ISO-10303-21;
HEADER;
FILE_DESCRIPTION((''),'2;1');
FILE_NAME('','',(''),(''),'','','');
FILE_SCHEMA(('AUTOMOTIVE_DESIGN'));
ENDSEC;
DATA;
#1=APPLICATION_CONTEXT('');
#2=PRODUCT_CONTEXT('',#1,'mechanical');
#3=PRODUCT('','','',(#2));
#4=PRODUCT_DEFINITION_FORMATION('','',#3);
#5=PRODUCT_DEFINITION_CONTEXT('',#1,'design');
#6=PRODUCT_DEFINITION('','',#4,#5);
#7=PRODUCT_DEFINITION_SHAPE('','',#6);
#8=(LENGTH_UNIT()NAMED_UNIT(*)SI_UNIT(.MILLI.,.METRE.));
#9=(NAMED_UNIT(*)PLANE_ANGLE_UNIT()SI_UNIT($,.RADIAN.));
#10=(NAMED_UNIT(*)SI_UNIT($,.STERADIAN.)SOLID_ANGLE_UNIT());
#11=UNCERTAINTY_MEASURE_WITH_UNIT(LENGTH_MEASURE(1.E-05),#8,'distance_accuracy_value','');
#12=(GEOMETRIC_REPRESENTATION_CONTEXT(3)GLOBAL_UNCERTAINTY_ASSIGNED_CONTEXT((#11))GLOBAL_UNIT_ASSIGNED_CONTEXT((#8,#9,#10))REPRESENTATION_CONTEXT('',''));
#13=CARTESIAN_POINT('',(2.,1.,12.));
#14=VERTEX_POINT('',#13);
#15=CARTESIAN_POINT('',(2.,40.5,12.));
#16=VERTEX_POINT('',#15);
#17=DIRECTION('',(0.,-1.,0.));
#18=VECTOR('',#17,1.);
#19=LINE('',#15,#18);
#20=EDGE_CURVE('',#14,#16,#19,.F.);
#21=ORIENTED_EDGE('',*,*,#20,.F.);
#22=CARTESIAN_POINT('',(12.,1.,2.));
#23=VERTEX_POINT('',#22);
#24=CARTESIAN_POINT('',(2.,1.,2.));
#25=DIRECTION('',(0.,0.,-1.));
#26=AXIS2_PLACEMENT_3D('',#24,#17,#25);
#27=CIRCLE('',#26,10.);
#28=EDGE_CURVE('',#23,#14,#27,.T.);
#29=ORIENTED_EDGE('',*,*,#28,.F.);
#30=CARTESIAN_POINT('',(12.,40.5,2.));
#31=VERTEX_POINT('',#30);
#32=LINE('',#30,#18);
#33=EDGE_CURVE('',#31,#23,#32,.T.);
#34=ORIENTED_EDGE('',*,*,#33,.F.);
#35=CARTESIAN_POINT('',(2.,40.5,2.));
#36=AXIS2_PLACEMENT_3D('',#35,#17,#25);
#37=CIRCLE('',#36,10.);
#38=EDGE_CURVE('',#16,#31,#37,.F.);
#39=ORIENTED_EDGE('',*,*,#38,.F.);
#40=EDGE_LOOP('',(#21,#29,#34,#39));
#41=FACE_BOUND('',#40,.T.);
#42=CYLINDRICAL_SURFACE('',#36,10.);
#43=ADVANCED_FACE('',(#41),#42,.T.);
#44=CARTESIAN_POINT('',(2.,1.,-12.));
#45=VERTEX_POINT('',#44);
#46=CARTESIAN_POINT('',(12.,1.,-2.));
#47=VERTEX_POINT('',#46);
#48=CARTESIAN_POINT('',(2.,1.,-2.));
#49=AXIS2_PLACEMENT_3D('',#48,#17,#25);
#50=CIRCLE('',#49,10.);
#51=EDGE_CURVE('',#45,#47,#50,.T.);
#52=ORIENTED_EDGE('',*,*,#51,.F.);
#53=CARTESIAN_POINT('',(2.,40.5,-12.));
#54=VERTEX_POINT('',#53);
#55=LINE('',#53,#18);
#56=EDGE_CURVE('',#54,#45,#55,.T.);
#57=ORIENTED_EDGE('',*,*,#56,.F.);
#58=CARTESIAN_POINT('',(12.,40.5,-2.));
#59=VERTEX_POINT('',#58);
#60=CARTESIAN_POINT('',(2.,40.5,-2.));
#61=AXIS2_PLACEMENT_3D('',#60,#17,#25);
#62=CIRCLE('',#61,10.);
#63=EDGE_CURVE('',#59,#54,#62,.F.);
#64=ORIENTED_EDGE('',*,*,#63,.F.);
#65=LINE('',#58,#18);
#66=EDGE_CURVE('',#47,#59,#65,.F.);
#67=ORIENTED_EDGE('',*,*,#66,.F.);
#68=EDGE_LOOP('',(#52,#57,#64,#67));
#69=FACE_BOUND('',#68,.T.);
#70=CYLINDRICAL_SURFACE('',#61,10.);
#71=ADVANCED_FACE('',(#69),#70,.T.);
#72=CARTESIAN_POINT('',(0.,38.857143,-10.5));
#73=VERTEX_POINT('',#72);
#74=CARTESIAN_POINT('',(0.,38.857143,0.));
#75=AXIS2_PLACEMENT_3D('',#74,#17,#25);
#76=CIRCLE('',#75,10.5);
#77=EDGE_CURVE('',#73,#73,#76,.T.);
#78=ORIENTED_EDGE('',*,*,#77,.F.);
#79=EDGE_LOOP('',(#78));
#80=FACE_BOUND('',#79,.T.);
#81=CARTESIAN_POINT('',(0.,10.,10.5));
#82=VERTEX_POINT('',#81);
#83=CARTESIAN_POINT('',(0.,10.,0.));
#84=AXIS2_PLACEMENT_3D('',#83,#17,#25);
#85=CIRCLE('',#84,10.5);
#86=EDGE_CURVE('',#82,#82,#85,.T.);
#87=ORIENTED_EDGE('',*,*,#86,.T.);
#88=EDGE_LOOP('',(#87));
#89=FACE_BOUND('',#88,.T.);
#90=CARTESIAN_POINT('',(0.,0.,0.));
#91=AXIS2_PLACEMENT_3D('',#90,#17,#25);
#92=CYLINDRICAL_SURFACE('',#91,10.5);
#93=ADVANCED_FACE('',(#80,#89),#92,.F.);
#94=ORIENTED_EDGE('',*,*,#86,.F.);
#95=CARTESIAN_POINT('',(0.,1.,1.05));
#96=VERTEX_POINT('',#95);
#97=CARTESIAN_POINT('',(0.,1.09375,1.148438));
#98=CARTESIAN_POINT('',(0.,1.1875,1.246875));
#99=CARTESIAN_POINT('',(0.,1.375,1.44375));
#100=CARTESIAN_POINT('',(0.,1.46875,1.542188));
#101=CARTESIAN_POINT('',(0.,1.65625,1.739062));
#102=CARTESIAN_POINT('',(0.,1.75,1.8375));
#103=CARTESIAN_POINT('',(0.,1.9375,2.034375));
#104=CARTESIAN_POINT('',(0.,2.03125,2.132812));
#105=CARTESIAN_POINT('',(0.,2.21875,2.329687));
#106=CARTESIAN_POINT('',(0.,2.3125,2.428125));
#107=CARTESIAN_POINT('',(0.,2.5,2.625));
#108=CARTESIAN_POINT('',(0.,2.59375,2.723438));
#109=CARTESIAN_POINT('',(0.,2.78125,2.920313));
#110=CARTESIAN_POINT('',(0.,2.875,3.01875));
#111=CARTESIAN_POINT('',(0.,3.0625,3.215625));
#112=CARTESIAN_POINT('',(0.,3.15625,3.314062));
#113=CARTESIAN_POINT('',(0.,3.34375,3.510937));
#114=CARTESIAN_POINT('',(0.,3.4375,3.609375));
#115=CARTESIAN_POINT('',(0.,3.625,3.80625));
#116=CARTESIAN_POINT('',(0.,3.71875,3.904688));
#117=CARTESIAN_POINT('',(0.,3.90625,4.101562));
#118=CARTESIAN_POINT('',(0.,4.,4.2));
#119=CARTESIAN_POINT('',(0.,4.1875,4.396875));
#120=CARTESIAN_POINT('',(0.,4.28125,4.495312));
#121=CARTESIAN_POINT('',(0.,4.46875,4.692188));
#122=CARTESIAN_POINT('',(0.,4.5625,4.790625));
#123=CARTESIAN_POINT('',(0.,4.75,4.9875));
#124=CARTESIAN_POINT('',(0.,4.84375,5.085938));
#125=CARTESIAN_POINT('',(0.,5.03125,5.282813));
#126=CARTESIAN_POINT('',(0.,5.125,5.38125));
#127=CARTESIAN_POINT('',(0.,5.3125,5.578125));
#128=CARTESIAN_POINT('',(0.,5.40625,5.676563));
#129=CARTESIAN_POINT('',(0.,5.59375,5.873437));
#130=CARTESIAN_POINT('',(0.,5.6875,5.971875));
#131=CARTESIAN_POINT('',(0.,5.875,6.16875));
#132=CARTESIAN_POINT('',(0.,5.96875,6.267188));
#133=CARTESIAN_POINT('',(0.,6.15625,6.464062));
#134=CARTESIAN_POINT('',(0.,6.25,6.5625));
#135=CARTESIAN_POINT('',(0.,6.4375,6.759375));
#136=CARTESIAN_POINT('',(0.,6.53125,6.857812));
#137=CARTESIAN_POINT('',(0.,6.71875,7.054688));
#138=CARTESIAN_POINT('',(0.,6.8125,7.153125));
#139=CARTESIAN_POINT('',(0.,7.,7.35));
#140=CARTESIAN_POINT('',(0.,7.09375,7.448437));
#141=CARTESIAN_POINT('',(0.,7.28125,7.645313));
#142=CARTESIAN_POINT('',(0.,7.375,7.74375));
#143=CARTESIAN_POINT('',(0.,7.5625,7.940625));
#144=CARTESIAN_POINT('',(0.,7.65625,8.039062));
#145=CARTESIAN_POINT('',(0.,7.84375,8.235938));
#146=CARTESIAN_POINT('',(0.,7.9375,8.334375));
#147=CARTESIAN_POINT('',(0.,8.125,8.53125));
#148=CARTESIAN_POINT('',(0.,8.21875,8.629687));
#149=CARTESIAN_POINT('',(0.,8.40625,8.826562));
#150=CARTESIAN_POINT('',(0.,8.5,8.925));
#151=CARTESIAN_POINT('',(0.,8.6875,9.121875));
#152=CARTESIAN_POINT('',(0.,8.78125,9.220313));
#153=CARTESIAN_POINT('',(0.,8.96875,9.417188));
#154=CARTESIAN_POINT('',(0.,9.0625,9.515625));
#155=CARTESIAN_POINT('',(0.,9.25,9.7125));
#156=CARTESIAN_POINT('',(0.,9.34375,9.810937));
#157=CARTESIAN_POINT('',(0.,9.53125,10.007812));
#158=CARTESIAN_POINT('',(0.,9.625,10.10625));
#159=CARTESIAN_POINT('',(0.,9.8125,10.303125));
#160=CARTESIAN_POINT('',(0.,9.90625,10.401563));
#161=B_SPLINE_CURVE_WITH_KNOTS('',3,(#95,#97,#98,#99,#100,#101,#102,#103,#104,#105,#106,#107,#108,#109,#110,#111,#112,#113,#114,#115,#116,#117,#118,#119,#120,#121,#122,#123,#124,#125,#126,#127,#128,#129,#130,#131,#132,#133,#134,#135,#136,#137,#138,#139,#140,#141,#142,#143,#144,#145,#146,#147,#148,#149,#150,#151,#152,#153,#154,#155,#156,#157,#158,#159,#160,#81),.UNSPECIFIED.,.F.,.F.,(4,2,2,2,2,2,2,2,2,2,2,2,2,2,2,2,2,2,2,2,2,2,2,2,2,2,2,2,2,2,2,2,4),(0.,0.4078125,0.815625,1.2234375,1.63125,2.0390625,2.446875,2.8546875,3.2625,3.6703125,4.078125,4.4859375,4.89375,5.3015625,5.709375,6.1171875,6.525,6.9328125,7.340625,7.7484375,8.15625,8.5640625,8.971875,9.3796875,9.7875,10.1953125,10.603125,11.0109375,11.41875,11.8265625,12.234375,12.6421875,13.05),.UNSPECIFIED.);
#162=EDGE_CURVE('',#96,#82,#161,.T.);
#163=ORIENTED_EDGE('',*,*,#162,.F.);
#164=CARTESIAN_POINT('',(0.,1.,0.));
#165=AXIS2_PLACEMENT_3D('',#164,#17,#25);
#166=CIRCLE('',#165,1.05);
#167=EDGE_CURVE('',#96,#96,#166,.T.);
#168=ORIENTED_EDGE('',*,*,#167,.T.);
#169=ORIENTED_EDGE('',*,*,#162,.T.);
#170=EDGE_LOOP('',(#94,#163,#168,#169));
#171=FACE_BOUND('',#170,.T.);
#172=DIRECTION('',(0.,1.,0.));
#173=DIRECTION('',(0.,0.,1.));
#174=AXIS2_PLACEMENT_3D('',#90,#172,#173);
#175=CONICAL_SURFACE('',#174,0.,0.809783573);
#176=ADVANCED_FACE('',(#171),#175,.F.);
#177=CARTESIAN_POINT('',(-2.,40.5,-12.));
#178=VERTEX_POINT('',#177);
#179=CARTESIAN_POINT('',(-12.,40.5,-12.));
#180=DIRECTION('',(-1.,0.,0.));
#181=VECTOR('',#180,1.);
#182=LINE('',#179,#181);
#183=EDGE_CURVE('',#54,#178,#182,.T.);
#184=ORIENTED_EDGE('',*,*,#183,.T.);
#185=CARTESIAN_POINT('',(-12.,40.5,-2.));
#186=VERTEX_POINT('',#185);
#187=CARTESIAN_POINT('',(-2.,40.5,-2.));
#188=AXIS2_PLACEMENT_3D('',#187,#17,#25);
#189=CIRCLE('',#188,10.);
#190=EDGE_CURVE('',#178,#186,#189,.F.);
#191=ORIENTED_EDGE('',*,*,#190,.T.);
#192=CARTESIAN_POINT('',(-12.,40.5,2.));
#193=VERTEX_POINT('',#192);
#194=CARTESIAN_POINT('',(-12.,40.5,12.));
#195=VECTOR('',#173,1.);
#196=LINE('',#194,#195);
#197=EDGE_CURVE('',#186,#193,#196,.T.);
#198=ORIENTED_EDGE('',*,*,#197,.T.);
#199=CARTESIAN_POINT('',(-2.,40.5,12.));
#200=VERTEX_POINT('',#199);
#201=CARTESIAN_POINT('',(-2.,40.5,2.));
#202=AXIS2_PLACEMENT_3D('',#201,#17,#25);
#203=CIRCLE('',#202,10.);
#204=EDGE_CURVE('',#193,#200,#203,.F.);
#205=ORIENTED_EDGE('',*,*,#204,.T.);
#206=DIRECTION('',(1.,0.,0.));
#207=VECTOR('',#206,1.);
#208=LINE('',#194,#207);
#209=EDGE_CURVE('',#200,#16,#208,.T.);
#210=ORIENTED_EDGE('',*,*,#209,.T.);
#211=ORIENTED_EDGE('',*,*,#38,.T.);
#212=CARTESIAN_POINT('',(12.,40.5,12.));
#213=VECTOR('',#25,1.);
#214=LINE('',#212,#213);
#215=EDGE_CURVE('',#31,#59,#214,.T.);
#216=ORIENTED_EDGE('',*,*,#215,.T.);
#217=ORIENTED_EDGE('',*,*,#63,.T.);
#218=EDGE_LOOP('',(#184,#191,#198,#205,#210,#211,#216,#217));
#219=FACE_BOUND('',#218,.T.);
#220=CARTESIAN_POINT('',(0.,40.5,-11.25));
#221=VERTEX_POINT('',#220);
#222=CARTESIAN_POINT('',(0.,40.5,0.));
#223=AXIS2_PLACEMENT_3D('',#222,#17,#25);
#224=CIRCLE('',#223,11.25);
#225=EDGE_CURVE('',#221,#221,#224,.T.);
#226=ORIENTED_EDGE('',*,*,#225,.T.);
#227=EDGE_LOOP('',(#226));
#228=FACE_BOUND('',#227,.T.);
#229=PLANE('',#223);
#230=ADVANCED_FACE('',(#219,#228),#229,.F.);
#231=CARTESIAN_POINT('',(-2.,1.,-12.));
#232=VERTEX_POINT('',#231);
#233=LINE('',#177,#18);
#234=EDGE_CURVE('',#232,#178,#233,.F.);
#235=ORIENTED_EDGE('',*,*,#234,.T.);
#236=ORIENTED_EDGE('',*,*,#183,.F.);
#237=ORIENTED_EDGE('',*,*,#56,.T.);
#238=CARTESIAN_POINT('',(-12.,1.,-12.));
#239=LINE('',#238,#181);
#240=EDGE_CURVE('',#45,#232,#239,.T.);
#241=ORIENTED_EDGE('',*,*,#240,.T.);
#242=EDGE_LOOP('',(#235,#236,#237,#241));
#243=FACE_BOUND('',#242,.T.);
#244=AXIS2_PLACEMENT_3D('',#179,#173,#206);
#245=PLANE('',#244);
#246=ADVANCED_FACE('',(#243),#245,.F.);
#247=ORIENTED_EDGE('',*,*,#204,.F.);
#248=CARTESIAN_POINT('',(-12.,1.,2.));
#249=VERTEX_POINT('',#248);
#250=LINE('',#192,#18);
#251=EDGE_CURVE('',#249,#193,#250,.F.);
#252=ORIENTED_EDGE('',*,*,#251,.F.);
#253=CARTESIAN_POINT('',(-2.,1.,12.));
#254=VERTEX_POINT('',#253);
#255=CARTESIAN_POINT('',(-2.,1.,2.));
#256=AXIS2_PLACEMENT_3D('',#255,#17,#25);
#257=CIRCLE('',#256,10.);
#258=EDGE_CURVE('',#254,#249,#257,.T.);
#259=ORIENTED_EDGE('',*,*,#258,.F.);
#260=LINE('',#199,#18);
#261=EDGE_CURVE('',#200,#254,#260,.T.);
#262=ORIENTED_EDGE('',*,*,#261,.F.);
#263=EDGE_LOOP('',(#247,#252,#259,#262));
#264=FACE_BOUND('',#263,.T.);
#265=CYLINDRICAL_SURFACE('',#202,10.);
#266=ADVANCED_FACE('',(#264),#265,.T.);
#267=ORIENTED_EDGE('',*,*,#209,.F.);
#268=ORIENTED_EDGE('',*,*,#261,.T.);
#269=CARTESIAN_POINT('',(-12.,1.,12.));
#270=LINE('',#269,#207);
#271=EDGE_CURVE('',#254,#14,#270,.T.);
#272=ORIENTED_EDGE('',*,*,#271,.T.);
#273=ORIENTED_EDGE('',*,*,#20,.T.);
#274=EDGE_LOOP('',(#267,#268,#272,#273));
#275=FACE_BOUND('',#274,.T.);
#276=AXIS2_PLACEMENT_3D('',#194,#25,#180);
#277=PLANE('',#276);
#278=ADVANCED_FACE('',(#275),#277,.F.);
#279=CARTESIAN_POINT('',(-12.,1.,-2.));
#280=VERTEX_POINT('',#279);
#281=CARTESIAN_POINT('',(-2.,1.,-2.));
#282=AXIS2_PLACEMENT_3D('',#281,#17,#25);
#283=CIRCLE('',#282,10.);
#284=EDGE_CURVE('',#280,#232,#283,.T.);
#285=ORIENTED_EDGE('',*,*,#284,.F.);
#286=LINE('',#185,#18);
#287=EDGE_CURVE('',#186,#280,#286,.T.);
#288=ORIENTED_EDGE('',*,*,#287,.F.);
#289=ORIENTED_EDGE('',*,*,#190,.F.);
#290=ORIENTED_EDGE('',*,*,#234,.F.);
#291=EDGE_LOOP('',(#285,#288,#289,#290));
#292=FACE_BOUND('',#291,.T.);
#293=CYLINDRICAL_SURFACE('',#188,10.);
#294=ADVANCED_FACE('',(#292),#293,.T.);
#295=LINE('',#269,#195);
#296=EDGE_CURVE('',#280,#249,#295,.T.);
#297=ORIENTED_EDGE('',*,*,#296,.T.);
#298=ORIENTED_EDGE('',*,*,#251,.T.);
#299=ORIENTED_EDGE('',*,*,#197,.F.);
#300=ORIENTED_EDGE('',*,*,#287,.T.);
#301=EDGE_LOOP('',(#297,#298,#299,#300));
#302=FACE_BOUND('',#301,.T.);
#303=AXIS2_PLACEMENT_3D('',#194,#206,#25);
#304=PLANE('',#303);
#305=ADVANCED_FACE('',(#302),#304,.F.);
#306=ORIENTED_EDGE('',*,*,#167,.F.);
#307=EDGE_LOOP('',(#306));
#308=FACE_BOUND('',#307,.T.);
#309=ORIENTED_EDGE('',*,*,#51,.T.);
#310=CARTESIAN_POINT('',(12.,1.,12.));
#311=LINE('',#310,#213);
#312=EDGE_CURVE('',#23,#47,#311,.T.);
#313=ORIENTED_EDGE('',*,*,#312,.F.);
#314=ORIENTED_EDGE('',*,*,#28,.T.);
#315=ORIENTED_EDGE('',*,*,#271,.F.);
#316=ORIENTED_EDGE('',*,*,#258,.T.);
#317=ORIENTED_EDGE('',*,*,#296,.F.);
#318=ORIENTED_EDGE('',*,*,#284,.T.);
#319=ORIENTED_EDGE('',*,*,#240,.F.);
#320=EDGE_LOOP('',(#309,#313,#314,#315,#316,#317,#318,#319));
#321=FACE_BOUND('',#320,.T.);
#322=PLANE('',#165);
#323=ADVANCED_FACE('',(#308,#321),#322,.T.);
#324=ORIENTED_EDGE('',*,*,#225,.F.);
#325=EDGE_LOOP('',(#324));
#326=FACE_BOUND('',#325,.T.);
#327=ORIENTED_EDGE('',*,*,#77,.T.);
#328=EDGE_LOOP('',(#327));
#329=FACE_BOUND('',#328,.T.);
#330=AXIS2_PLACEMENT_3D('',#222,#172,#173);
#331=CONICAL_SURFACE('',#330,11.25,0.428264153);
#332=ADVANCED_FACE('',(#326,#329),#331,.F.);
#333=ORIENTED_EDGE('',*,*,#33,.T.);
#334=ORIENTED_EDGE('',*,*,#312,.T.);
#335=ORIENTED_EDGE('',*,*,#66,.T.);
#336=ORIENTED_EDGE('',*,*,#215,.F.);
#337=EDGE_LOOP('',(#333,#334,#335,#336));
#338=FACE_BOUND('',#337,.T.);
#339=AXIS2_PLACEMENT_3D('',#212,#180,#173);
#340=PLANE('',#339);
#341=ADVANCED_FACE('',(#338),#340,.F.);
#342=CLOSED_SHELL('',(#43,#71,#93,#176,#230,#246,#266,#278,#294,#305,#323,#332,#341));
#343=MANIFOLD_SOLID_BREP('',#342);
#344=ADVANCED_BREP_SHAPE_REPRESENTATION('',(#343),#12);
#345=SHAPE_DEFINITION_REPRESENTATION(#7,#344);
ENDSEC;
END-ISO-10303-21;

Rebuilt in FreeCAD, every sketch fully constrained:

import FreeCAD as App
import Part
import Sketcher
from FreeCAD import Vector
Q = App.Units.Quantity


def edges_at(feature, points):
    """Names of the edges that pass closest to the given points."""
    edges = feature.Shape.Edges
    near = lambda p: min(range(len(edges)), key=lambda i: edges[i].distToShape(Part.Vertex(*p))[0])
    return sorted({f"Edge{near(p) + 1}" for p in points})

doc = App.newDocument("Part")
body = doc.addObject("PartDesign::Body", "Body")

sketch1 = doc.addObject("Sketcher::SketchObject", "Sketch")
body.addObject(sketch1)
sketch1.AttachmentSupport = (doc.YZ_Plane, [""])
sketch1.MapMode = "FlatFace"
sketch1.addGeometry([
    Part.LineSegment(Vector(0, 0, 0), Vector(10, -10.5, 0)),
    Part.LineSegment(Vector(10, -10.5, 0), Vector(38.9, -10.5, 0)),
    Part.LineSegment(Vector(38.9, -10.5, 0), Vector(40.5, -11.2, 0)),
    Part.LineSegment(Vector(40.5, -11.2, 0), Vector(44.5, -11.2, 0)),
    Part.LineSegment(Vector(44.5, -11.2, 0), Vector(44.5, 0, 0)),
    Part.LineSegment(Vector(44.5, 0, 0), Vector(0, 0, 0)),
], False)
sketch1.addConstraint([
    Sketcher.Constraint("Coincident", 0, 2, 1, 1),
    Sketcher.Constraint("Coincident", 1, 2, 2, 1),
    Sketcher.Constraint("Coincident", 2, 2, 3, 1),
    Sketcher.Constraint("Coincident", 3, 2, 4, 1),
    Sketcher.Constraint("Coincident", 4, 2, 5, 1),
    Sketcher.Constraint("Coincident", 5, 2, 0, 1),
    Sketcher.Constraint("Horizontal", 1),
    Sketcher.Constraint("Horizontal", 3),
    Sketcher.Constraint("Vertical", 4),
    Sketcher.Constraint("Horizontal", 5),
    Sketcher.Constraint("Coincident", 5, 2, -1, 1),
    Sketcher.Constraint("DistanceX", 3, 1, 3, 2, Q("4 mm")),
    Sketcher.Constraint("DistanceX", 5, 2, 5, 1, Q("44.5 mm")),
    Sketcher.Constraint("DistanceX", -1, 1, 0, 2, Q("10 mm")),
    Sketcher.Constraint("Distance", 0, Q("14.5 mm")),
    Sketcher.Constraint("DistanceY", 4, 1, 4, 2, Q("11.25 mm")),
    Sketcher.Constraint("DistanceX", 1, 1, 1, 2, Q("28.857143 mm")),
])
revolution = doc.addObject("PartDesign::Revolution", "Revolution")
body.addObject(revolution)
revolution.Profile = sketch1
revolution.ReferenceAxis = (sketch1, ["H_Axis"])
revolution.Angle = 360
body2 = doc.addObject("PartDesign::Body", "Body001")

sketch2 = doc.addObject("Sketcher::SketchObject", "Sketch001")
body2.addObject(sketch2)
sketch2.AttachmentSupport = (doc.getObject("XZ_Plane001"), [""])
sketch2.MapMode = "FlatFace"
sketch2.AttachmentOffset = App.Placement(Vector(0, 0, -1), App.Rotation())
sketch2.addGeometry([
    Part.LineSegment(Vector(-12, -12, 0), Vector(-12, 12, 0)),
    Part.LineSegment(Vector(-12, 12, 0), Vector(12, 12, 0)),
    Part.LineSegment(Vector(12, 12, 0), Vector(12, -12, 0)),
    Part.LineSegment(Vector(12, -12, 0), Vector(-12, -12, 0)),
], False)
sketch2.addConstraint([
    Sketcher.Constraint("Coincident", 0, 2, 1, 1),
    Sketcher.Constraint("Coincident", 1, 2, 2, 1),
    Sketcher.Constraint("Coincident", 2, 2, 3, 1),
    Sketcher.Constraint("Coincident", 3, 2, 0, 1),
    Sketcher.Constraint("Vertical", 0),
    Sketcher.Constraint("Horizontal", 1),
    Sketcher.Constraint("Vertical", 2),
    Sketcher.Constraint("Horizontal", 3),
    Sketcher.Constraint("Symmetric", 0, 2, 2, 2, -1, 1),
    Sketcher.Constraint("Equal", 3, 0),
    Sketcher.Constraint("DistanceX", 1, 1, 1, 2, Q("24 mm")),
])
pad1 = doc.addObject("PartDesign::Pad", "Pad")
body2.addObject(pad1)
pad1.Profile = sketch2
pad1.Length = 39.5
pad1.Reversed = True
doc.recompute()

boolean = doc.addObject("PartDesign::Boolean", "Boolean")
body2.addObject(boolean)
boolean.Type = "Cut"
boolean.addObjects([body])
doc.recompute()

fillet = doc.addObject("PartDesign::Fillet", "Fillet")
body2.addObject(fillet)
fillet.Base = (boolean, edges_at(boolean, [
    (12, 20.75, 12),
    (-12, 20.75, 12),
    (-12, 20.75, -12),
    (12, 20.75, -12),
]))
fillet.Radius = 10

doc.recompute()
